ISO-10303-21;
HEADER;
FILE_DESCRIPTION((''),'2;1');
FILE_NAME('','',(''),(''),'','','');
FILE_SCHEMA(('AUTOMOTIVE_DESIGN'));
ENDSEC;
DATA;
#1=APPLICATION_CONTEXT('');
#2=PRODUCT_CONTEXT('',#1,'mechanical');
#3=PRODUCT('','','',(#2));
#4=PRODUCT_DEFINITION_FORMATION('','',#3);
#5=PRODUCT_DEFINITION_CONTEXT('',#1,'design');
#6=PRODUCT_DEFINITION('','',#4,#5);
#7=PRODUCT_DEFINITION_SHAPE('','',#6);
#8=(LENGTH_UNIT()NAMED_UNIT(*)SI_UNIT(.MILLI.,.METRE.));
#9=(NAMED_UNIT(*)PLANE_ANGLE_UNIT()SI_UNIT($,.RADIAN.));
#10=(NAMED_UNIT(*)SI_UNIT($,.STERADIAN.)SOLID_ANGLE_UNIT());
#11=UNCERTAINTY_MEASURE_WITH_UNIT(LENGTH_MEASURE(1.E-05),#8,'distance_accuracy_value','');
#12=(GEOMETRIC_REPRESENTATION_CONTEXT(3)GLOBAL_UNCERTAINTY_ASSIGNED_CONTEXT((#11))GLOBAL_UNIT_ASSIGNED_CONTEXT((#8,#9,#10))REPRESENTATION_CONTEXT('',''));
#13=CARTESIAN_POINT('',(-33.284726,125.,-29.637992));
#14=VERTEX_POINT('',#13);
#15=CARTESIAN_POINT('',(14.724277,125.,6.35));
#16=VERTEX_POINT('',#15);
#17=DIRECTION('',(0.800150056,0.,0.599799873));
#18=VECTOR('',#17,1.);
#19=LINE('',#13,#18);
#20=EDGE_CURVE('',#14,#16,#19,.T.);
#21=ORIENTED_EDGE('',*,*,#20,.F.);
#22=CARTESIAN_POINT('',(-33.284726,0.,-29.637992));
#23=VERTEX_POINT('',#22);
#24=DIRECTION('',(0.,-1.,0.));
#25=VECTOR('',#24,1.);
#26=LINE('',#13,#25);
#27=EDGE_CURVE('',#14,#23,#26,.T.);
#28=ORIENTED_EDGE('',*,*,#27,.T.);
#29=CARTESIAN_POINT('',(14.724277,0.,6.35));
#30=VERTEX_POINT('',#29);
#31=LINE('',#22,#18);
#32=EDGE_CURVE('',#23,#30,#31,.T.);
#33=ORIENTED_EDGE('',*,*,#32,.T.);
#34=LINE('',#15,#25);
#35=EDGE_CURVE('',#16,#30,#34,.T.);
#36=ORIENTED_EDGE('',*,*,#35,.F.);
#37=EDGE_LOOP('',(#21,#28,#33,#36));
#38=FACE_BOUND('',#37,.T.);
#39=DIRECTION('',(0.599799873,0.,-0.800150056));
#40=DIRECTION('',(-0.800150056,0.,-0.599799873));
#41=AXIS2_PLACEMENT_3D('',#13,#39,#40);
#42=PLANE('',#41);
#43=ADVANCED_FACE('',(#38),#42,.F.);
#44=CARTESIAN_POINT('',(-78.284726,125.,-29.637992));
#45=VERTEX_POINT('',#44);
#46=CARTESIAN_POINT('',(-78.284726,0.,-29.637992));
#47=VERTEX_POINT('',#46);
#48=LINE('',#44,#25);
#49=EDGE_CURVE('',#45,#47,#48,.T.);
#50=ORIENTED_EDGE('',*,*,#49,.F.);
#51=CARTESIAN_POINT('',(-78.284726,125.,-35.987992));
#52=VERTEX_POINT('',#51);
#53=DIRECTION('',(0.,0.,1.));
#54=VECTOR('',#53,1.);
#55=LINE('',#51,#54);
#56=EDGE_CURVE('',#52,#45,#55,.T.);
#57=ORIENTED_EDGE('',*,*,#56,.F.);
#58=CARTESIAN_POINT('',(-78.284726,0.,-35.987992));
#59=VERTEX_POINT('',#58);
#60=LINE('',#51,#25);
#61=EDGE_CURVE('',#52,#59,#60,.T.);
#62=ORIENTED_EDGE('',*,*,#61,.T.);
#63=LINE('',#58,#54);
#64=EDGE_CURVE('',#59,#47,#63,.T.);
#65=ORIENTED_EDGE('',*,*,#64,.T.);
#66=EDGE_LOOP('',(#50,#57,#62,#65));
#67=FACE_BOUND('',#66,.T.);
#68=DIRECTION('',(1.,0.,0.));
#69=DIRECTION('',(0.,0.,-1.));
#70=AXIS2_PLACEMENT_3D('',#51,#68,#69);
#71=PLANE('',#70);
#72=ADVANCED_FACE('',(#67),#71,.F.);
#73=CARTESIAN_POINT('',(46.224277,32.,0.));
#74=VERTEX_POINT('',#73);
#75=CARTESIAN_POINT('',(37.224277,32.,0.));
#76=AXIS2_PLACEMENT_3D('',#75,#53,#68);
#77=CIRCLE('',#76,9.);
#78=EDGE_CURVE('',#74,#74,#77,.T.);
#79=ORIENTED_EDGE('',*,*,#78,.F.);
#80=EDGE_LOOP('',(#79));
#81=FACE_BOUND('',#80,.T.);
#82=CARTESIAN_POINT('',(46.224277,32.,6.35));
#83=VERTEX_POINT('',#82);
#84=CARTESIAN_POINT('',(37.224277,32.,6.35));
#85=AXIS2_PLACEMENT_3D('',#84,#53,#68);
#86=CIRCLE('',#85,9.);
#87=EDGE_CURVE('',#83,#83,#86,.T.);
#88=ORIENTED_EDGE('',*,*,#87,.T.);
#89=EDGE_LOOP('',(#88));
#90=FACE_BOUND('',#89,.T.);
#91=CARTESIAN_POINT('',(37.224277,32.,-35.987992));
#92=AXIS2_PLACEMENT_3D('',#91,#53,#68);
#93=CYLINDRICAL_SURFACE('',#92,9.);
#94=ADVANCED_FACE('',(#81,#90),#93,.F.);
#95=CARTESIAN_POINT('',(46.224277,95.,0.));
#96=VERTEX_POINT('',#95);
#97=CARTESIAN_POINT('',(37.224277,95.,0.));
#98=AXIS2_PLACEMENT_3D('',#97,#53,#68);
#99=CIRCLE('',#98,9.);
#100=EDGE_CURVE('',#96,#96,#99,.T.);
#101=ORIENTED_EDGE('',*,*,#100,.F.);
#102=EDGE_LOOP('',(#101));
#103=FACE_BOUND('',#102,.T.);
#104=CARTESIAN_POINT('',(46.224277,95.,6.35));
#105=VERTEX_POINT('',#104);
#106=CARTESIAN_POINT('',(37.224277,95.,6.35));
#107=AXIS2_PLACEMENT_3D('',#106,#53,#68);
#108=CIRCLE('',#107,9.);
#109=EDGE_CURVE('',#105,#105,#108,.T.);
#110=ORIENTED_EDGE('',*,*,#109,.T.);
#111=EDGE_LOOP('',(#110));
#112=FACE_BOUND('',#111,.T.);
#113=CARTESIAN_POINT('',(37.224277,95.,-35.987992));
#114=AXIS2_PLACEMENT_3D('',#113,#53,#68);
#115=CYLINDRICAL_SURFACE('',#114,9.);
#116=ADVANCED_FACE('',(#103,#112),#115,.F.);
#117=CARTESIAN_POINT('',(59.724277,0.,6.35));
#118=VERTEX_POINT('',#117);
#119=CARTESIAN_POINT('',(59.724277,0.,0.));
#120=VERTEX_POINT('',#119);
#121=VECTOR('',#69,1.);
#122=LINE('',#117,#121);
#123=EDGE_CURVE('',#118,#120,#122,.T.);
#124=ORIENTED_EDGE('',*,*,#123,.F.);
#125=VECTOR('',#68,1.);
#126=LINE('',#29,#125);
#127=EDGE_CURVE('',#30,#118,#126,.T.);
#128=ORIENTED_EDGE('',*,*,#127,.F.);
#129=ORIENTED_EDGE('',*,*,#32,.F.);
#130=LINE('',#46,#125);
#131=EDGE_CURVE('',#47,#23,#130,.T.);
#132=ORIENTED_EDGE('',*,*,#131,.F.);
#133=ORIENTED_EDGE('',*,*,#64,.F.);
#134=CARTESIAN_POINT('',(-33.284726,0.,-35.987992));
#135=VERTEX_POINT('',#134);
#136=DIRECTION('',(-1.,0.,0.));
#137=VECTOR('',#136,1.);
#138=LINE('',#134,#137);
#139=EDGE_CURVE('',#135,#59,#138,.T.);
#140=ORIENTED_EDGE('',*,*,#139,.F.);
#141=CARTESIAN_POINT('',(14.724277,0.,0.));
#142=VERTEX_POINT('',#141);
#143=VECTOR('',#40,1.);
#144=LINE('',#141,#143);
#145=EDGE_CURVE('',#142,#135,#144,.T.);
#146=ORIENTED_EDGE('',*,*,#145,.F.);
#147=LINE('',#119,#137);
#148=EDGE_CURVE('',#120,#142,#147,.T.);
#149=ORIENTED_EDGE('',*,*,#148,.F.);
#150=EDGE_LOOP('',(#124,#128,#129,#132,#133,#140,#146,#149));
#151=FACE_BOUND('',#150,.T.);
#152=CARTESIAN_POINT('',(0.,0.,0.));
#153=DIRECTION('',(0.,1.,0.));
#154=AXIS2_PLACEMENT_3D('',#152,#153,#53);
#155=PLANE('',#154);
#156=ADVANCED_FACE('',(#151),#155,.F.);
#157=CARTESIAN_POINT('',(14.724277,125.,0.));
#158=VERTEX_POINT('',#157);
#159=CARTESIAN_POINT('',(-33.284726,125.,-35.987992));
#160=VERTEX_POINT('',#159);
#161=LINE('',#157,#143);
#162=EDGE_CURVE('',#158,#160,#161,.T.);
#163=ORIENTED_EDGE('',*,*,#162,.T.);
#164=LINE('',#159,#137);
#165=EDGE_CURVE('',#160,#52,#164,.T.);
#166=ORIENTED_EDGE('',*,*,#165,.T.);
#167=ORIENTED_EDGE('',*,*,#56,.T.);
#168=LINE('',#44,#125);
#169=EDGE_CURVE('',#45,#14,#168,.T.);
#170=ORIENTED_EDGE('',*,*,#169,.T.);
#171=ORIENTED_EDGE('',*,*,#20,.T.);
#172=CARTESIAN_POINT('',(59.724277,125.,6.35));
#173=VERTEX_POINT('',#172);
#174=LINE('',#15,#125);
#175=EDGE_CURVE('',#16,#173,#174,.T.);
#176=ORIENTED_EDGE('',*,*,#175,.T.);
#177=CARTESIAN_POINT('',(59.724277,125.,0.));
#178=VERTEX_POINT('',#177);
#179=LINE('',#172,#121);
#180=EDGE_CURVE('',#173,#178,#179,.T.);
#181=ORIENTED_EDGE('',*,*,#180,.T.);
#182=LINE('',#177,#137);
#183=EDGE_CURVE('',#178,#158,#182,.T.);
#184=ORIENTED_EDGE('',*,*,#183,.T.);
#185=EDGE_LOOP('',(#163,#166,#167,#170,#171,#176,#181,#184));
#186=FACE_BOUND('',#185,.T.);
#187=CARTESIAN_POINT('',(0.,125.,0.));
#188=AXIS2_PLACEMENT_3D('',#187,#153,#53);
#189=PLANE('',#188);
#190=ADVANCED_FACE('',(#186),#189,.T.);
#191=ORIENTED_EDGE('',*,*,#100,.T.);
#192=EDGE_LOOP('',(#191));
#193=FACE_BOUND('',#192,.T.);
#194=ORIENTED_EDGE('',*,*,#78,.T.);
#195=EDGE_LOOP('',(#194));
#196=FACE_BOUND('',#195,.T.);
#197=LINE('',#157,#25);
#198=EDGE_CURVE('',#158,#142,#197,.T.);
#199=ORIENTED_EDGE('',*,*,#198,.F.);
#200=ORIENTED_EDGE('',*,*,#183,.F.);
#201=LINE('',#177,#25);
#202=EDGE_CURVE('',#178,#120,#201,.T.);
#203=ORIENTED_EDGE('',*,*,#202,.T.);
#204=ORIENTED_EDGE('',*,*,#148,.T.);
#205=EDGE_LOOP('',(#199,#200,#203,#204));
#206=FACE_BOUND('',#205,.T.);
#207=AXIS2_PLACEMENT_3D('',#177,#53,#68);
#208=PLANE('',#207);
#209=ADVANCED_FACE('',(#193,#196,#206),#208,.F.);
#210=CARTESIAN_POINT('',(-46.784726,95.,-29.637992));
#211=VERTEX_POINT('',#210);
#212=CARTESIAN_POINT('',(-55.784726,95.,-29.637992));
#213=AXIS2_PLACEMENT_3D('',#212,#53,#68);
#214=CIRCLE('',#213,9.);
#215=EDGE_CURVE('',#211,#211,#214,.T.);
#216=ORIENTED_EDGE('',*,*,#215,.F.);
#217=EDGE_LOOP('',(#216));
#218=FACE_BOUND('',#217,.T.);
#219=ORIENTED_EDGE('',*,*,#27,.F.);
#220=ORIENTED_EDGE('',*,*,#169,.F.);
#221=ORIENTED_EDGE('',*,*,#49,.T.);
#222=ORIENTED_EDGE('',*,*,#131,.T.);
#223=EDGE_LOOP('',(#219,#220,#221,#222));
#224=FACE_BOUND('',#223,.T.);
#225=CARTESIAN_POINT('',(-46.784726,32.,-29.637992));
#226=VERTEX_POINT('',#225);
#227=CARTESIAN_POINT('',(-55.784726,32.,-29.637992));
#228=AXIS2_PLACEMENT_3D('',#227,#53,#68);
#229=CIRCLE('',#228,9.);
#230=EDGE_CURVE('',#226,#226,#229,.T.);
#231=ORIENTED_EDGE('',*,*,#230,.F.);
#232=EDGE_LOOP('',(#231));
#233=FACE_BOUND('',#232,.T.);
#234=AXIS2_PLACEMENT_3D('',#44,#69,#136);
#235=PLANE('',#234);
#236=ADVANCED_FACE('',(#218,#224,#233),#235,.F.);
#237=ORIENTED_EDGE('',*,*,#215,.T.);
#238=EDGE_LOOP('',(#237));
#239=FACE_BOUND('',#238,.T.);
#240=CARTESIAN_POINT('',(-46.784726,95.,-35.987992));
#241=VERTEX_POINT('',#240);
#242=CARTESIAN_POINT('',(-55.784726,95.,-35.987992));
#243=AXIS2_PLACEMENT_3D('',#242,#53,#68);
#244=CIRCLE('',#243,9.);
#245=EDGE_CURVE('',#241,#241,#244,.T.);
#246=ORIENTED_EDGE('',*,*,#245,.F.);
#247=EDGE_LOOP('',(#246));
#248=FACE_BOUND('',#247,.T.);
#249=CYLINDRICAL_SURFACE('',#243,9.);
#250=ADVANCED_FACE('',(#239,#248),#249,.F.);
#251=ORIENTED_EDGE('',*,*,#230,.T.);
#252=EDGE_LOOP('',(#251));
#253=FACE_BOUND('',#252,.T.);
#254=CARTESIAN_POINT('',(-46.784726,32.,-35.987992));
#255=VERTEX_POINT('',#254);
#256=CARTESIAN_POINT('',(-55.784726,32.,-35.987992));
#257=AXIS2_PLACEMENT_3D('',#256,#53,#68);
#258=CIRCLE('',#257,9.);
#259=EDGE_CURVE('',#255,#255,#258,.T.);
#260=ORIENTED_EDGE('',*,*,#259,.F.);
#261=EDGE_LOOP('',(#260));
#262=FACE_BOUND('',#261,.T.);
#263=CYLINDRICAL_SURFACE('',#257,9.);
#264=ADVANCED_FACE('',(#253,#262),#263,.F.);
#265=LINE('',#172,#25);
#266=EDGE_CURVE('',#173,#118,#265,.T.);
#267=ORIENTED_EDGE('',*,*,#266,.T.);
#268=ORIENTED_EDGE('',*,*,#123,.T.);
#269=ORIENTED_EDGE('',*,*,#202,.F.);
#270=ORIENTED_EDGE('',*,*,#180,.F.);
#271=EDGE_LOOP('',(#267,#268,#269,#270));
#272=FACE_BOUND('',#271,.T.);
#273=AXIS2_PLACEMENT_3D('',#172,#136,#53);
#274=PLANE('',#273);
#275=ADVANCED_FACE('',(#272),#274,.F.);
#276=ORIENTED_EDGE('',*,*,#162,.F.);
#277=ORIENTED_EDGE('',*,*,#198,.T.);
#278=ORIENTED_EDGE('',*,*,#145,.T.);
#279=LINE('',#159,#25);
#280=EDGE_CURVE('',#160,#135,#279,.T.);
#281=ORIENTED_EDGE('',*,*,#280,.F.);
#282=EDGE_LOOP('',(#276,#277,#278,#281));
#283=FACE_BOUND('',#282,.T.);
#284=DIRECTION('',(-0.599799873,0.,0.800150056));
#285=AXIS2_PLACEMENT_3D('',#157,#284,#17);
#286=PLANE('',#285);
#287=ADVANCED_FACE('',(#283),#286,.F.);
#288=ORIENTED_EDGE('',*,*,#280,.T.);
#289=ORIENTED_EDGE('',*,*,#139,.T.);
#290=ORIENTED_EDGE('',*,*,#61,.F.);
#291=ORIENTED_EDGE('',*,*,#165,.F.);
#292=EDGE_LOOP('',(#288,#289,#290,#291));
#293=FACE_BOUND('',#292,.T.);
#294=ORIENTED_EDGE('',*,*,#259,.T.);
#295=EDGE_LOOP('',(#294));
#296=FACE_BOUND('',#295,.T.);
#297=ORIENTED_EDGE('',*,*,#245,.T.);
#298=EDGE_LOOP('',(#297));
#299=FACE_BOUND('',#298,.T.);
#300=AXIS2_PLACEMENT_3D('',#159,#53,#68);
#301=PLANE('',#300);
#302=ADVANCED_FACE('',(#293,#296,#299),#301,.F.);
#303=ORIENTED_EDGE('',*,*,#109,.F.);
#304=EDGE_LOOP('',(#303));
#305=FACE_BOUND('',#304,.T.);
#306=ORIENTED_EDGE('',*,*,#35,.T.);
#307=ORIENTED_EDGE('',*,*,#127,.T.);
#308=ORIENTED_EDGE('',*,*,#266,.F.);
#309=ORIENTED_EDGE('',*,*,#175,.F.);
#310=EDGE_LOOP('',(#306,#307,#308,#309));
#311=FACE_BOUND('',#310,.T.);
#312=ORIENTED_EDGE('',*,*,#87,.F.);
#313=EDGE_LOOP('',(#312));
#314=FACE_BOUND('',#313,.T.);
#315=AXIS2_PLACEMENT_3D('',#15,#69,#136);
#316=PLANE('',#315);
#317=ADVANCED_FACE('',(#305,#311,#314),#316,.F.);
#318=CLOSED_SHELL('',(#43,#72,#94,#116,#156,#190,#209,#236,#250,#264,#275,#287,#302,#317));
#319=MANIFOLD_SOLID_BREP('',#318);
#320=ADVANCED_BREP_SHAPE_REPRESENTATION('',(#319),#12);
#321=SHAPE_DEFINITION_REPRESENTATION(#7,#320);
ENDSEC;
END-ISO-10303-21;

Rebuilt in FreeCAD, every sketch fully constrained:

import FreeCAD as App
import Part
import Sketcher
from FreeCAD import Vector

doc = App.newDocument("Part")
body = doc.addObject("PartDesign::Body", "Body")

# Sketch on XZ plane
sketch1 = doc.addObject("Sketcher::SketchObject", "Sketch")
body.addObject(sketch1)
sketch1.AttachmentSupport = (doc.XZ_Plane, [""])
sketch1.MapMode = "FlatFace"
sketch1.addGeometry(Part.LineSegment(Vector(-78, -36, 0), Vector(-78, -30, 0)), False)
sketch1.addGeometry(Part.LineSegment(Vector(-78, -30, 0), Vector(-33, -30, 0)), False)
sketch1.addGeometry(Part.LineSegment(Vector(-33, -30, 0), Vector(15, 6, 0)), False)
sketch1.addGeometry(Part.LineSegment(Vector(15, 6, 0), Vector(60, 6, 0)), False)
sketch1.addGeometry(Part.LineSegment(Vector(60, 6, 0), Vector(60, 0, 0)), False)
sketch1.addGeometry(Part.LineSegment(Vector(60, 0, 0), Vector(15, 0, 0)), False)
sketch1.addGeometry(Part.LineSegment(Vector(15, 0, 0), Vector(-33, -36, 0)), False)
sketch1.addGeometry(Part.LineSegment(Vector(-33, -36, 0), Vector(-78, -36, 0)), False)
sketch1.addConstraint(Sketcher.Constraint("Coincident", 0, 2, 1, 1))
sketch1.addConstraint(Sketcher.Constraint("Coincident", 1, 2, 2, 1))
sketch1.addConstraint(Sketcher.Constraint("Coincident", 2, 2, 3, 1))
sketch1.addConstraint(Sketcher.Constraint("Coincident", 3, 2, 4, 1))
sketch1.addConstraint(Sketcher.Constraint("Coincident", 4, 2, 5, 1))
sketch1.addConstraint(Sketcher.Constraint("Coincident", 5, 2, 6, 1))
sketch1.addConstraint(Sketcher.Constraint("Coincident", 6, 2, 7, 1))
sketch1.addConstraint(Sketcher.Constraint("Coincident", 7, 2, 0, 1))
sketch1.addConstraint(Sketcher.Constraint("Vertical", 0))
sketch1.addConstraint(Sketcher.Constraint("Horizontal", 1))
sketch1.addConstraint(Sketcher.Constraint("Horizontal", 3))
sketch1.addConstraint(Sketcher.Constraint("Vertical", 4))
sketch1.addConstraint(Sketcher.Constraint("Horizontal", 5))
sketch1.addConstraint(Sketcher.Constraint("Horizontal", 7))
sketch1.addConstraint(Sketcher.Constraint("PointOnObject", 4, 2, -1))
sketch1.addConstraint(Sketcher.Constraint("Parallel", 2, 6))
sketch1.addConstraint(Sketcher.Constraint("Vertical", 2, 2, 5, 2))
sketch1.addConstraint(Sketcher.Constraint("Vertical", 1, 2, 6, 2))
sketch1.addConstraint(Sketcher.Constraint("Equal", 1, 3))
sketch1.addConstraint(Sketcher.Constraint("DistanceX", 1, 1, 1, 2, 45.0))
sketch1.addConstraint(Sketcher.Constraint("Distance", 2, 60.0))
sketch1.addConstraint(Sketcher.Constraint("DistanceY", 0, 1, 0, 2, 6.35))
sketch1.addConstraint(Sketcher.Constraint("DistanceX", 0, 2, -1, 1, 78.284726))
sketch1.addConstraint(Sketcher.Constraint("DistanceY", 0, 2, -1, 1, 29.637992))
pad1 = doc.addObject("PartDesign::Pad", "Pad")
body.addObject(pad1)
pad1.Profile = sketch1
pad1.Length = 125
pad1.Reversed = True

# Sketch on XY plane
sketch2 = doc.addObject("Sketcher::SketchObject", "Sketch001")
body.addObject(sketch2)
sketch2.AttachmentSupport = (doc.XY_Plane, [""])
sketch2.MapMode = "FlatFace"
sketch2.AttachmentOffset = App.Placement(Vector(0, 0, -29.637992), App.Rotation())
sketch2.addGeometry(Part.Circle(Vector(-56, 95, 0), Vector(0, 0, 1), 9), False)
sketch2.addGeometry(Part.Circle(Vector(-56, 32, 0), Vector(0, 0, 1), 9), False)
sketch2.addConstraint(Sketcher.Constraint("Equal", 0, 1))
sketch2.addConstraint(Sketcher.Constraint("Vertical", 0, 3, 1, 3))
sketch2.addConstraint(Sketcher.Constraint("Diameter", 0, 18.0))
sketch2.addConstraint(Sketcher.Constraint("DistanceY", -1, 1, 0, 3, 95.0))
sketch2.addConstraint(Sketcher.Constraint("DistanceY", -1, 1, 1, 3, 32.0))
sketch2.addConstraint(Sketcher.Constraint("DistanceX", 0, 3, -1, 1, 55.784726))
pocket1 = doc.addObject("PartDesign::Pocket", "Pocket")
body.addObject(pocket1)
pocket1.Profile = sketch2
pocket1.Type = "ThroughAll"

# Sketch on XY plane
sketch3 = doc.addObject("Sketcher::SketchObject", "Sketch002")
body.addObject(sketch3)
sketch3.AttachmentSupport = (doc.XY_Plane, [""])
sketch3.MapMode = "FlatFace"
sketch3.AttachmentOffset = App.Placement(Vector(0, 0, 6.35), App.Rotation())
sketch3.addGeometry(Part.Circle(Vector(37, 95, 0), Vector(0, 0, 1), 9), False)
sketch3.addGeometry(Part.Circle(Vector(37, 32, 0), Vector(0, 0, 1), 9), False)
sketch3.addConstraint(Sketcher.Constraint("Equal", 0, 1))
sketch3.addConstraint(Sketcher.Constraint("Vertical", 0, 3, 1, 3))
sketch3.addConstraint(Sketcher.Constraint("Diameter", 0, 18.0))
sketch3.addConstraint(Sketcher.Constraint("DistanceY", -1, 1, 0, 3, 95.0))
sketch3.addConstraint(Sketcher.Constraint("DistanceY", -1, 1, 1, 3, 32.0))
sketch3.addConstraint(Sketcher.Constraint("DistanceX", -1, 1, 0, 3, 37.224277))
pocket2 = doc.addObject("PartDesign::Pocket", "Pocket001")
body.addObject(pocket2)
pocket2.Profile = sketch3
pocket2.Type = "ThroughAll"

doc.recompute()
